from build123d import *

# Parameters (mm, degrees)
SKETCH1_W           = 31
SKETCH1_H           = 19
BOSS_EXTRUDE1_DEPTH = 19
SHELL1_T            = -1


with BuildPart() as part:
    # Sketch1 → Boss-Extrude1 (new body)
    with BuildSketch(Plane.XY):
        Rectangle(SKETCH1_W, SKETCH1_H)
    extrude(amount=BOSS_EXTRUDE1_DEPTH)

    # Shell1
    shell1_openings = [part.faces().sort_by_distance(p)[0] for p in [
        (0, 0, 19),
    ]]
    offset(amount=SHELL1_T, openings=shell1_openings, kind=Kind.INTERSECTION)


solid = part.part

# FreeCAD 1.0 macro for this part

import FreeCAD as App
import Part
import Sketcher


def faces_at(feature, points):
    """Names of the faces that lie closest to the given points."""
    faces = feature.Shape.Faces
    near = lambda p: min(range(len(faces)), key=lambda i: faces[i].distToShape(Part.Vertex(*p))[0])
    return sorted({f"Face{near(p) + 1}" for p in points})


def add_polygon(sketch, points):
    """Adds a closed chain of lines whose ends are joined by coincident constraints."""
    first, n = sketch.GeometryCount, len(points)
    for a, b in zip(points, points[1:] + points[:1]):
        sketch.addGeometry(Part.LineSegment(App.Vector(*a, 0), App.Vector(*b, 0)), False)
    for i in range(n):
        sketch.addConstraint(Sketcher.Constraint("Coincident", first + i, 2, first + (i + 1) % n, 1))

doc = App.newDocument("Part")
body = doc.addObject("PartDesign::Body", "Body")

# Sketch on XY plane
sketch1 = doc.addObject("Sketcher::SketchObject", "Sketch")
body.addObject(sketch1)
sketch1.AttachmentSupport = (doc.XY_Plane, [""])
sketch1.MapMode = "FlatFace"
add_polygon(sketch1, [(-16, 10), (-16, -10), (16, -10), (16, 10)])  # lines 0-3
sketch1.addConstraint(Sketcher.Constraint("Vertical", 0))
sketch1.addConstraint(Sketcher.Constraint("Horizontal", 1))
sketch1.addConstraint(Sketcher.Constraint("Vertical", 2))
sketch1.addConstraint(Sketcher.Constraint("Horizontal", 3))
sketch1.addConstraint(Sketcher.Constraint("Symmetric", 0, 2, 2, 2, -1, 1))
sketch1.addConstraint(Sketcher.Constraint("DistanceX", 1, 1, 1, 2, 31.0))
sketch1.addConstraint(Sketcher.Constraint("DistanceY", 0, 2, 0, 1, 19.0))
pad1 = doc.addObject("PartDesign::Pad", "Pad")
body.addObject(pad1)
pad1.Profile = sketch1
pad1.Length = 19
doc.recompute()

thickness = doc.addObject("PartDesign::Thickness", "Thickness")
body.addObject(thickness)
thickness.Base = (pad1, faces_at(pad1, [(0, 0, 19)]))
thickness.Value = 1
thickness.Reversed = True
thickness.Join = "Intersection"

doc.recompute()
